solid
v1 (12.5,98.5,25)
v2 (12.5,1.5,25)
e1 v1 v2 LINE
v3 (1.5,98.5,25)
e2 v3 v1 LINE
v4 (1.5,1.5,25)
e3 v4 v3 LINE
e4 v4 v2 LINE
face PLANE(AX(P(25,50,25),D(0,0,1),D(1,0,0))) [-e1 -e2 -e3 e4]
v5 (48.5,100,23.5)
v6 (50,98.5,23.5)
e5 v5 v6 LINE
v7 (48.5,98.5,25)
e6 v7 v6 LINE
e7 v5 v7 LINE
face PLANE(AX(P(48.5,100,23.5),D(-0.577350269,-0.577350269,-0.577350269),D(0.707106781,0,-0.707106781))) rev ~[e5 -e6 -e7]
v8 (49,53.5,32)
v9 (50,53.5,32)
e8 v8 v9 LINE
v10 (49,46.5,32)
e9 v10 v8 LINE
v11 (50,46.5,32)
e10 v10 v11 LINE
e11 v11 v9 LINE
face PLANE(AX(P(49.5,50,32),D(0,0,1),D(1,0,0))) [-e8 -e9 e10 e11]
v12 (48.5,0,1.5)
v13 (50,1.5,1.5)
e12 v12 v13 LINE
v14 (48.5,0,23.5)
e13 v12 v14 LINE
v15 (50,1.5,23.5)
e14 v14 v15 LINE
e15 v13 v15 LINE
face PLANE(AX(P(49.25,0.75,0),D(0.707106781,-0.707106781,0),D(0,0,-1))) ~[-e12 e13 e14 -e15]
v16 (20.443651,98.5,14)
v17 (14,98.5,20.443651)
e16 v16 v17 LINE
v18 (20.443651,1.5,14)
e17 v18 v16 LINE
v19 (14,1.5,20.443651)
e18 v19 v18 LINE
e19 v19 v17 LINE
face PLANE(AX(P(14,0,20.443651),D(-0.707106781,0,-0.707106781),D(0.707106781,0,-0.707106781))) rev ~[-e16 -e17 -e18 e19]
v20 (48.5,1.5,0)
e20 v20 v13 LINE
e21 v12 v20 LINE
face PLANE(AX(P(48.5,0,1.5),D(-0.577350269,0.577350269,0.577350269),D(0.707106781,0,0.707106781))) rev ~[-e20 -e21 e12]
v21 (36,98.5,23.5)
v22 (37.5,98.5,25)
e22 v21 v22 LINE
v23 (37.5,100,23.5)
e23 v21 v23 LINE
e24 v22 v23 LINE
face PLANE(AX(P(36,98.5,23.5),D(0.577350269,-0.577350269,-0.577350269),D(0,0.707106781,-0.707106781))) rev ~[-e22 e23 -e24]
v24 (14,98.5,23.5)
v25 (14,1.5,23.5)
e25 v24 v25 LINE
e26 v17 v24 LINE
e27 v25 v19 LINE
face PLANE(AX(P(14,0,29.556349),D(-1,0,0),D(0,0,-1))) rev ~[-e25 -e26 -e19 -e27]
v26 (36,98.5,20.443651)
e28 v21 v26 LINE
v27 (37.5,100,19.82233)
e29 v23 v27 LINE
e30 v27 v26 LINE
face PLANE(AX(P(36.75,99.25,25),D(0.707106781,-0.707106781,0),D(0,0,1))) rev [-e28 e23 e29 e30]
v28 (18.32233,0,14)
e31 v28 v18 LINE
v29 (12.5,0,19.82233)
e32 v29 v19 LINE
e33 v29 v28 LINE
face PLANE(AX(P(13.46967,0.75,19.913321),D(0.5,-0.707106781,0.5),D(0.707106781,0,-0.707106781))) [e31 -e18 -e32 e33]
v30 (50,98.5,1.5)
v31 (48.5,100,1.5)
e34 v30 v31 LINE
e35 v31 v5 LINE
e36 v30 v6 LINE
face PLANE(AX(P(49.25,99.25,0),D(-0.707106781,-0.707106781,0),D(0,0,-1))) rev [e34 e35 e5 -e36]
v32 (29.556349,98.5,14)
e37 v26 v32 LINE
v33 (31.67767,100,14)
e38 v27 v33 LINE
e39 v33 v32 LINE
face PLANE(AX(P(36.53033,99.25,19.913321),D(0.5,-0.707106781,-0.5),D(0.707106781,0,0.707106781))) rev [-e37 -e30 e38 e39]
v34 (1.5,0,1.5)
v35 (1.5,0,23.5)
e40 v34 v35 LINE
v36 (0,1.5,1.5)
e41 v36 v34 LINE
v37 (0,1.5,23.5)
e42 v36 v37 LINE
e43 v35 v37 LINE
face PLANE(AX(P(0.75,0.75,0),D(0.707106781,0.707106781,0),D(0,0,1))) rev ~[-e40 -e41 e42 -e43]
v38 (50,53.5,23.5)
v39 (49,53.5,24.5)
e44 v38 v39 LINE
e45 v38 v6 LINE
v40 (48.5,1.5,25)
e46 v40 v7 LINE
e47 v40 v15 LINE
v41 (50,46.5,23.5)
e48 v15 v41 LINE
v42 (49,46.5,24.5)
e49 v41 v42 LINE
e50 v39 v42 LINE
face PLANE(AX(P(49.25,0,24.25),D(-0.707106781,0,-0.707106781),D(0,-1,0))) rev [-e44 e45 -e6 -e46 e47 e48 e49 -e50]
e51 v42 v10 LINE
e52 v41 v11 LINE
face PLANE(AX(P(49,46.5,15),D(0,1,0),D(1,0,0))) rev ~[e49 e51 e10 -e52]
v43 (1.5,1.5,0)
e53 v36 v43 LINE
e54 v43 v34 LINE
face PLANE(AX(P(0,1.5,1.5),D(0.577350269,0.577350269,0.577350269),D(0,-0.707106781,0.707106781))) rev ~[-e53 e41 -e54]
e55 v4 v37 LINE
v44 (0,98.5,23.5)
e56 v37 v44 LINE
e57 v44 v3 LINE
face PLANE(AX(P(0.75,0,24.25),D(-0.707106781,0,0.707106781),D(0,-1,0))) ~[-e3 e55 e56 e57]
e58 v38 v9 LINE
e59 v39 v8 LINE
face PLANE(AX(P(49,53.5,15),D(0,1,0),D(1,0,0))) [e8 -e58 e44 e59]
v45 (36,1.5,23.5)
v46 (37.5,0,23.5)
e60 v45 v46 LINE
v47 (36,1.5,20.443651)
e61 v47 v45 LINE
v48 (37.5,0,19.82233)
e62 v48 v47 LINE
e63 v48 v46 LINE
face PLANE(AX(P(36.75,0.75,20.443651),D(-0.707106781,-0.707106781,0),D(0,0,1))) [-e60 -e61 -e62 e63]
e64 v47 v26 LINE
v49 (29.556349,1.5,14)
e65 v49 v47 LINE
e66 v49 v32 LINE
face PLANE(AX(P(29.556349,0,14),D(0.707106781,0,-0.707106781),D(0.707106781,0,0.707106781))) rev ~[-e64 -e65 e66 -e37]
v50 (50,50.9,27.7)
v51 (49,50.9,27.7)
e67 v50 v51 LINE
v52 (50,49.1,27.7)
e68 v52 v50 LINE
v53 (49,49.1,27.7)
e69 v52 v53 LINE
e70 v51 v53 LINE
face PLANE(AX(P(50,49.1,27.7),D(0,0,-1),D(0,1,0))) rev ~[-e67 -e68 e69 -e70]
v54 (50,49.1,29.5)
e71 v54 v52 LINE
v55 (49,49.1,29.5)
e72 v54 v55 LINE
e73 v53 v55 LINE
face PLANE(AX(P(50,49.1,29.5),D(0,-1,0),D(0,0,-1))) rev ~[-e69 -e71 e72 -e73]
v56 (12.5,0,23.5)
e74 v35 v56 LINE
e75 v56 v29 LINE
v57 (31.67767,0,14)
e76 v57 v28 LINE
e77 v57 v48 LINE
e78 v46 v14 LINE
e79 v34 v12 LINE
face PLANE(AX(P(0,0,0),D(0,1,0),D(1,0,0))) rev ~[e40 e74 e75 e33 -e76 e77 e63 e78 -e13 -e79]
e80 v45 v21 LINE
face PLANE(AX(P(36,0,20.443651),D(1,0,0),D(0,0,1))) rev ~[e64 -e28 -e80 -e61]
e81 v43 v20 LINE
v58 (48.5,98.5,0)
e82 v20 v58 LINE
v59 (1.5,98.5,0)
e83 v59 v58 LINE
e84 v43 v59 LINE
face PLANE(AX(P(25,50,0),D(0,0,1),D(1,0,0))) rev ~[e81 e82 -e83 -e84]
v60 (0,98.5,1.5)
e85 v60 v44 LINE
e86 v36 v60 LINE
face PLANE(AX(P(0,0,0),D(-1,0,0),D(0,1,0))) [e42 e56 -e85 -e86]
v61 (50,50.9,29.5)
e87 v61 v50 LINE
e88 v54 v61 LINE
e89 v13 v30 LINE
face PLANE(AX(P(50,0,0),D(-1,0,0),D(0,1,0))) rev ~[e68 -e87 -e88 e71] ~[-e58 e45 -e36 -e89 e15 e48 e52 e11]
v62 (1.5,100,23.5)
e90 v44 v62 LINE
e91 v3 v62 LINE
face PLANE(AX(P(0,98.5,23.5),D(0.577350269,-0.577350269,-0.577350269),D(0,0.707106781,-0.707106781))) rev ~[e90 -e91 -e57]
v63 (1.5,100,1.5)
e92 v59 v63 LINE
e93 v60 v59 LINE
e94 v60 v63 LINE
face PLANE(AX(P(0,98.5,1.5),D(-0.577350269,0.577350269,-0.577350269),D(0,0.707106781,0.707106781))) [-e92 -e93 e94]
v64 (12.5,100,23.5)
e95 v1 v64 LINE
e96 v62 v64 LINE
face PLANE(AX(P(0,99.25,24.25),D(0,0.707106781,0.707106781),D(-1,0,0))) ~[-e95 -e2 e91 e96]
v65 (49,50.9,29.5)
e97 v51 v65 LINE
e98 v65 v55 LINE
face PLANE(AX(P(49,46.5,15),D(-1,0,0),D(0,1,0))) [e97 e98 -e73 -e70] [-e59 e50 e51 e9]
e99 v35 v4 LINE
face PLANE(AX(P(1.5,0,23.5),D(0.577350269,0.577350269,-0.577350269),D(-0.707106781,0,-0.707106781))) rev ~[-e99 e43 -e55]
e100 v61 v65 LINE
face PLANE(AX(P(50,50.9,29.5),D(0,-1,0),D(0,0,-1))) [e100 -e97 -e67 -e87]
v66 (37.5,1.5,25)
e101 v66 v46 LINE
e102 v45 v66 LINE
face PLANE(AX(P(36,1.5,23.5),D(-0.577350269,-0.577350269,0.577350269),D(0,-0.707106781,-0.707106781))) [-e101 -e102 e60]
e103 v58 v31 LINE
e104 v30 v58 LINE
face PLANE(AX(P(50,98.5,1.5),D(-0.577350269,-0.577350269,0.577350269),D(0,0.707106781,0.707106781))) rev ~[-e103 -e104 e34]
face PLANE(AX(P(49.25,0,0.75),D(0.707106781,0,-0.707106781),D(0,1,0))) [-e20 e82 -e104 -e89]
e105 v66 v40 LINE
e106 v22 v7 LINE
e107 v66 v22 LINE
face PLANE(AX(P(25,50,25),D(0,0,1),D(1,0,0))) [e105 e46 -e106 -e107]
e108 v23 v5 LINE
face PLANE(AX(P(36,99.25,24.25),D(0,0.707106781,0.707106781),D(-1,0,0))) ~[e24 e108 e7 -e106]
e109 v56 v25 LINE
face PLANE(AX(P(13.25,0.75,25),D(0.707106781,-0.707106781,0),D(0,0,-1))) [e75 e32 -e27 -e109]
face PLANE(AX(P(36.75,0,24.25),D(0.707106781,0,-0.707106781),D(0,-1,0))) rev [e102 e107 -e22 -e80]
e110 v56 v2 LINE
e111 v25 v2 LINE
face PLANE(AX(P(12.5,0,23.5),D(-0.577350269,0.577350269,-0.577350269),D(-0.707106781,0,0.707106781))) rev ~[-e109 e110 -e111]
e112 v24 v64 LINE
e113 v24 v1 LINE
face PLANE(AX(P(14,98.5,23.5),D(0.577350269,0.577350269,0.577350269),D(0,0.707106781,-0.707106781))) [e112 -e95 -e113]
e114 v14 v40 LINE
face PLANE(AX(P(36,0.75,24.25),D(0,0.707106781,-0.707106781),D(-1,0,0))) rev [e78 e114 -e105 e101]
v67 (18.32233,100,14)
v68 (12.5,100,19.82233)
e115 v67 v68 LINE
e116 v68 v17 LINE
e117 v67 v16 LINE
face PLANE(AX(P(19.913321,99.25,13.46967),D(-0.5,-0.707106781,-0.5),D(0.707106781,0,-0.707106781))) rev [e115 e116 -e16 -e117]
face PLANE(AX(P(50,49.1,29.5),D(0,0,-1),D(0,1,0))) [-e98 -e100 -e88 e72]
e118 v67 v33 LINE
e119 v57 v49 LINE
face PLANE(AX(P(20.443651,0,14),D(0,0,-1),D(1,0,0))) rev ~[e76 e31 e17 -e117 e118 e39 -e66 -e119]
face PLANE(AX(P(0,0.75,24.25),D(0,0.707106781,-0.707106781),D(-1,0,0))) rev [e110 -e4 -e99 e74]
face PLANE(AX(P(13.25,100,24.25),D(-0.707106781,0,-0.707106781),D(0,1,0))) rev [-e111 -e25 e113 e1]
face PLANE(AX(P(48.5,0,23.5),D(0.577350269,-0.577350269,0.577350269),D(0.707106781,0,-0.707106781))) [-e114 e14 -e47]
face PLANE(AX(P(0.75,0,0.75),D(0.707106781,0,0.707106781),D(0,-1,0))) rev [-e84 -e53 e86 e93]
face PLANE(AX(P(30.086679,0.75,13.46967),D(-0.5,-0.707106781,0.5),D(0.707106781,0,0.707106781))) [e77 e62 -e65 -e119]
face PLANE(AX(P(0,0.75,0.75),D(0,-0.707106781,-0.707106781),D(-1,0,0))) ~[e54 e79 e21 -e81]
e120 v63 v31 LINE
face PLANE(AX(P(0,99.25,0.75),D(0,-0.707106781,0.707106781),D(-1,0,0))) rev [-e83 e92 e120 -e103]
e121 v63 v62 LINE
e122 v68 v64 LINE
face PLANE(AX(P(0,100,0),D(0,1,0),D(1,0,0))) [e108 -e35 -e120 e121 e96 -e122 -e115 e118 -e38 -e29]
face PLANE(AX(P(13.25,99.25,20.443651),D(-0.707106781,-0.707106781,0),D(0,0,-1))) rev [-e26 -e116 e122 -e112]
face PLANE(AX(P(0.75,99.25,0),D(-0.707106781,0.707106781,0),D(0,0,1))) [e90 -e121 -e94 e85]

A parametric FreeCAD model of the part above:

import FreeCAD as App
import Part
import Sketcher

V = App.Vector


def edges_at(feature, points):
    """Names of the edges that pass closest to the given points."""
    edges = feature.Shape.Edges
    near = lambda p: min(range(len(edges)), key=lambda i: edges[i].distToShape(Part.Vertex(*p))[0])
    return sorted({f"Edge{near(p) + 1}" for p in points})

doc = App.newDocument("Part")
body = doc.addObject("PartDesign::Body", "Body")

# Sketch on XY plane
sketch1 = doc.addObject("Sketcher::SketchObject", "Sketch")
body.addObject(sketch1)
sketch1.AttachmentSupport = (doc.XY_Plane, [""])
sketch1.MapMode = "FlatFace"
sketch1.addGeometry([
    Part.LineSegment(V(0, 100, 0), V(0, 0, 0)),
    Part.LineSegment(V(0, 0, 0), V(50, 0, 0)),
    Part.LineSegment(V(50, 0, 0), V(50, 100, 0)),
    Part.LineSegment(V(50, 100, 0), V(0, 100, 0)),
], False)
sketch1.addConstraint([
    Sketcher.Constraint("Coincident", 0, 2, 1, 1),
    Sketcher.Constraint("Coincident", 1, 2, 2, 1),
    Sketcher.Constraint("Coincident", 2, 2, 3, 1),
    Sketcher.Constraint("Coincident", 3, 2, 0, 1),
    Sketcher.Constraint("Vertical", 0),
    Sketcher.Constraint("Horizontal", 1),
    Sketcher.Constraint("Vertical", 2),
    Sketcher.Constraint("Horizontal", 3),
    Sketcher.Constraint("Coincident", 0, 2, -1, 1),
    Sketcher.Constraint("DistanceX", 1, 1, 1, 2, 50.0),
    Sketcher.Constraint("DistanceY", 0, 2, 0, 1, 100.0),
])
pad1 = doc.addObject("PartDesign::Pad", "Pad")
body.addObject(pad1)
pad1.Profile = sketch1
pad1.Length = 25

# Sketch on XZ plane
sketch2 = doc.addObject("Sketcher::SketchObject", "Sketch001")
body.addObject(sketch2)
sketch2.AttachmentSupport = (doc.XZ_Plane, [""])
sketch2.MapMode = "FlatFace"
sketch2.addGeometry([
    Part.LineSegment(V(30, 36, 0), V(20, 36, 0)),  # 0
    Part.LineSegment(V(20, 36, 0), V(14, 30, 0)),  # 1
    Part.LineSegment(V(14, 30, 0), V(14, 20, 0)),  # 2
    Part.LineSegment(V(14, 20, 0), V(20, 14, 0)),  # 3
    Part.LineSegment(V(20, 14, 0), V(30, 14, 0)),  # 4
    Part.LineSegment(V(30, 14, 0), V(36, 20, 0)),  # 5
    Part.LineSegment(V(36, 20, 0), V(36, 30, 0)),  # 6
    Part.LineSegment(V(36, 30, 0), V(30, 36, 0)),  # 7
], False)
sketch2.addConstraint([
    Sketcher.Constraint("Coincident", 0, 2, 1, 1),
    Sketcher.Constraint("Coincident", 1, 2, 2, 1),
    Sketcher.Constraint("Coincident", 2, 2, 3, 1),
    Sketcher.Constraint("Coincident", 3, 2, 4, 1),
    Sketcher.Constraint("Coincident", 4, 2, 5, 1),
    Sketcher.Constraint("Coincident", 5, 2, 6, 1),
    Sketcher.Constraint("Coincident", 6, 2, 7, 1),
    Sketcher.Constraint("Coincident", 7, 2, 0, 1),
    Sketcher.Constraint("Horizontal", 0),
    Sketcher.Constraint("Vertical", 2),
    Sketcher.Constraint("Horizontal", 4),
    Sketcher.Constraint("Vertical", 6),
    Sketcher.Constraint("Perpendicular", 1, 3),
    Sketcher.Constraint("Perpendicular", 3, 5),
    Sketcher.Constraint("Perpendicular", 5, 7),
    Sketcher.Constraint("Horizontal", 2, 2, 5, 2),
    Sketcher.Constraint("Horizontal", 1, 2, 6, 2),
    Sketcher.Constraint("Vertical", 0, 2, 3, 2),
    Sketcher.Constraint("Vertical", 4, 2, 7, 2),
    Sketcher.Constraint("Equal", 4, 2),
    Sketcher.Constraint("DistanceY", -1, 1, 0, 2, 36.0),
    Sketcher.Constraint("DistanceX", -1, 1, 1, 2, 14.0),
    Sketcher.Constraint("DistanceY", -1, 1, 3, 2, 14.0),
    Sketcher.Constraint("DistanceX", 0, 2, 0, 1, 9.112698),
])
pocket1 = doc.addObject("PartDesign::Pocket", "Pocket")
body.addObject(pocket1)
pocket1.Profile = sketch2
pocket1.Type = "ThroughAll"
doc.recompute()

chamfer = doc.addObject("PartDesign::Chamfer", "Chamfer")
body.addObject(chamfer)
chamfer.Base = (pocket1, edges_at(pocket1, [
    (50, 50, 25),
    (43, 100, 25),
    (43, 0, 25),
    (7, 100, 25),
    (14, 50, 25),
    (36, 50, 25),
    (36, 100, 22.722),
    (14, 100, 22.722),
    (36, 0, 22.722),
    (14, 0, 22.722),
    (17.222, 0, 17.222),
    (32.778, 0, 17.222),
    (32.778, 100, 17.222),
    (17.222, 100, 17.222),
    (0, 50, 25),
    (25, 100, 0),
    (50, 50, 0),
    (25, 0, 0),
    (0, 50, 0),
    (7, 0, 25),
    (0, 100, 12.5),
    (50, 100, 12.5),
    (50, 0, 12.5),
    (0, 0, 12.5),
]))
chamfer.Size = 1.5

# Sketch on XY plane
sketch3 = doc.addObject("Sketcher::SketchObject", "Sketch002")
body.addObject(sketch3)
sketch3.AttachmentSupport = (doc.XY_Plane, [""])
sketch3.MapMode = "FlatFace"
sketch3.AttachmentOffset = App.Placement(V(0, 0, 25), App.Rotation())
sketch3.addGeometry([
    Part.LineSegment(V(49, 53.5, 0), V(49, 46.5, 0)),
    Part.LineSegment(V(49, 46.5, 0), V(50, 46.5, 0)),
    Part.LineSegment(V(50, 46.5, 0), V(50, 53.5, 0)),
    Part.LineSegment(V(50, 53.5, 0), V(49, 53.5, 0)),
], False)
sketch3.addConstraint([
    Sketcher.Constraint("Coincident", 0, 2, 1, 1),
    Sketcher.Constraint("Coincident", 1, 2, 2, 1),
    Sketcher.Constraint("Coincident", 2, 2, 3, 1),
    Sketcher.Constraint("Coincident", 3, 2, 0, 1),
    Sketcher.Constraint("Vertical", 0),
    Sketcher.Constraint("Horizontal", 1),
    Sketcher.Constraint("Vertical", 2),
    Sketcher.Constraint("Horizontal", 3),
    Sketcher.Constraint("DistanceX", 1, 1, 1, 2, 1.0),
    Sketcher.Constraint("DistanceY", 0, 2, 0, 1, 7.0),
    Sketcher.Constraint("DistanceX", -1, 1, 0, 2, 49.0),
    Sketcher.Constraint("DistanceY", -1, 1, 0, 2, 46.5),
])
pad2 = doc.addObject("PartDesign::Pad", "Pad001")
body.addObject(pad2)
pad2.Profile = sketch3
pad2.Type = "TwoLengths"
pad2.Length = 7
pad2.Length2 = 10

# Sketch on YZ plane
sketch4 = doc.addObject("Sketcher::SketchObject", "Sketch003")
body.addObject(sketch4)
sketch4.AttachmentSupport = (doc.YZ_Plane, [""])
sketch4.MapMode = "FlatFace"
sketch4.AttachmentOffset = App.Placement(V(0, 0, 50), App.Rotation())
sketch4.addGeometry([
    Part.LineSegment(V(50.9, 29.5, 0), V(49.1, 29.5, 0)),
    Part.LineSegment(V(49.1, 29.5, 0), V(49.1, 27.7, 0)),
    Part.LineSegment(V(49.1, 27.7, 0), V(50.9, 27.7, 0)),
    Part.LineSegment(V(50.9, 27.7, 0), V(50.9, 29.5, 0)),
], False)
sketch4.addConstraint([
    Sketcher.Constraint("Coincident", 0, 2, 1, 1),
    Sketcher.Constraint("Coincident", 1, 2, 2, 1),
    Sketcher.Constraint("Coincident", 2, 2, 3, 1),
    Sketcher.Constraint("Coincident", 3, 2, 0, 1),
    Sketcher.Constraint("Horizontal", 0),
    Sketcher.Constraint("Vertical", 1),
    Sketcher.Constraint("Horizontal", 2),
    Sketcher.Constraint("Vertical", 3),
    Sketcher.Constraint("Equal", 2, 1),
    Sketcher.Constraint("DistanceX", 0, 2, 0, 1, 1.8),
    Sketcher.Constraint("DistanceX", -1, 1, 0, 2, 49.1),
    Sketcher.Constraint("DistanceY", -1, 1, 0, 2, 29.5),
])
pocket2 = doc.addObject("PartDesign::Pocket", "Pocket001")
body.addObject(pocket2)
pocket2.Profile = sketch4
pocket2.Length = 7

doc.recompute()
